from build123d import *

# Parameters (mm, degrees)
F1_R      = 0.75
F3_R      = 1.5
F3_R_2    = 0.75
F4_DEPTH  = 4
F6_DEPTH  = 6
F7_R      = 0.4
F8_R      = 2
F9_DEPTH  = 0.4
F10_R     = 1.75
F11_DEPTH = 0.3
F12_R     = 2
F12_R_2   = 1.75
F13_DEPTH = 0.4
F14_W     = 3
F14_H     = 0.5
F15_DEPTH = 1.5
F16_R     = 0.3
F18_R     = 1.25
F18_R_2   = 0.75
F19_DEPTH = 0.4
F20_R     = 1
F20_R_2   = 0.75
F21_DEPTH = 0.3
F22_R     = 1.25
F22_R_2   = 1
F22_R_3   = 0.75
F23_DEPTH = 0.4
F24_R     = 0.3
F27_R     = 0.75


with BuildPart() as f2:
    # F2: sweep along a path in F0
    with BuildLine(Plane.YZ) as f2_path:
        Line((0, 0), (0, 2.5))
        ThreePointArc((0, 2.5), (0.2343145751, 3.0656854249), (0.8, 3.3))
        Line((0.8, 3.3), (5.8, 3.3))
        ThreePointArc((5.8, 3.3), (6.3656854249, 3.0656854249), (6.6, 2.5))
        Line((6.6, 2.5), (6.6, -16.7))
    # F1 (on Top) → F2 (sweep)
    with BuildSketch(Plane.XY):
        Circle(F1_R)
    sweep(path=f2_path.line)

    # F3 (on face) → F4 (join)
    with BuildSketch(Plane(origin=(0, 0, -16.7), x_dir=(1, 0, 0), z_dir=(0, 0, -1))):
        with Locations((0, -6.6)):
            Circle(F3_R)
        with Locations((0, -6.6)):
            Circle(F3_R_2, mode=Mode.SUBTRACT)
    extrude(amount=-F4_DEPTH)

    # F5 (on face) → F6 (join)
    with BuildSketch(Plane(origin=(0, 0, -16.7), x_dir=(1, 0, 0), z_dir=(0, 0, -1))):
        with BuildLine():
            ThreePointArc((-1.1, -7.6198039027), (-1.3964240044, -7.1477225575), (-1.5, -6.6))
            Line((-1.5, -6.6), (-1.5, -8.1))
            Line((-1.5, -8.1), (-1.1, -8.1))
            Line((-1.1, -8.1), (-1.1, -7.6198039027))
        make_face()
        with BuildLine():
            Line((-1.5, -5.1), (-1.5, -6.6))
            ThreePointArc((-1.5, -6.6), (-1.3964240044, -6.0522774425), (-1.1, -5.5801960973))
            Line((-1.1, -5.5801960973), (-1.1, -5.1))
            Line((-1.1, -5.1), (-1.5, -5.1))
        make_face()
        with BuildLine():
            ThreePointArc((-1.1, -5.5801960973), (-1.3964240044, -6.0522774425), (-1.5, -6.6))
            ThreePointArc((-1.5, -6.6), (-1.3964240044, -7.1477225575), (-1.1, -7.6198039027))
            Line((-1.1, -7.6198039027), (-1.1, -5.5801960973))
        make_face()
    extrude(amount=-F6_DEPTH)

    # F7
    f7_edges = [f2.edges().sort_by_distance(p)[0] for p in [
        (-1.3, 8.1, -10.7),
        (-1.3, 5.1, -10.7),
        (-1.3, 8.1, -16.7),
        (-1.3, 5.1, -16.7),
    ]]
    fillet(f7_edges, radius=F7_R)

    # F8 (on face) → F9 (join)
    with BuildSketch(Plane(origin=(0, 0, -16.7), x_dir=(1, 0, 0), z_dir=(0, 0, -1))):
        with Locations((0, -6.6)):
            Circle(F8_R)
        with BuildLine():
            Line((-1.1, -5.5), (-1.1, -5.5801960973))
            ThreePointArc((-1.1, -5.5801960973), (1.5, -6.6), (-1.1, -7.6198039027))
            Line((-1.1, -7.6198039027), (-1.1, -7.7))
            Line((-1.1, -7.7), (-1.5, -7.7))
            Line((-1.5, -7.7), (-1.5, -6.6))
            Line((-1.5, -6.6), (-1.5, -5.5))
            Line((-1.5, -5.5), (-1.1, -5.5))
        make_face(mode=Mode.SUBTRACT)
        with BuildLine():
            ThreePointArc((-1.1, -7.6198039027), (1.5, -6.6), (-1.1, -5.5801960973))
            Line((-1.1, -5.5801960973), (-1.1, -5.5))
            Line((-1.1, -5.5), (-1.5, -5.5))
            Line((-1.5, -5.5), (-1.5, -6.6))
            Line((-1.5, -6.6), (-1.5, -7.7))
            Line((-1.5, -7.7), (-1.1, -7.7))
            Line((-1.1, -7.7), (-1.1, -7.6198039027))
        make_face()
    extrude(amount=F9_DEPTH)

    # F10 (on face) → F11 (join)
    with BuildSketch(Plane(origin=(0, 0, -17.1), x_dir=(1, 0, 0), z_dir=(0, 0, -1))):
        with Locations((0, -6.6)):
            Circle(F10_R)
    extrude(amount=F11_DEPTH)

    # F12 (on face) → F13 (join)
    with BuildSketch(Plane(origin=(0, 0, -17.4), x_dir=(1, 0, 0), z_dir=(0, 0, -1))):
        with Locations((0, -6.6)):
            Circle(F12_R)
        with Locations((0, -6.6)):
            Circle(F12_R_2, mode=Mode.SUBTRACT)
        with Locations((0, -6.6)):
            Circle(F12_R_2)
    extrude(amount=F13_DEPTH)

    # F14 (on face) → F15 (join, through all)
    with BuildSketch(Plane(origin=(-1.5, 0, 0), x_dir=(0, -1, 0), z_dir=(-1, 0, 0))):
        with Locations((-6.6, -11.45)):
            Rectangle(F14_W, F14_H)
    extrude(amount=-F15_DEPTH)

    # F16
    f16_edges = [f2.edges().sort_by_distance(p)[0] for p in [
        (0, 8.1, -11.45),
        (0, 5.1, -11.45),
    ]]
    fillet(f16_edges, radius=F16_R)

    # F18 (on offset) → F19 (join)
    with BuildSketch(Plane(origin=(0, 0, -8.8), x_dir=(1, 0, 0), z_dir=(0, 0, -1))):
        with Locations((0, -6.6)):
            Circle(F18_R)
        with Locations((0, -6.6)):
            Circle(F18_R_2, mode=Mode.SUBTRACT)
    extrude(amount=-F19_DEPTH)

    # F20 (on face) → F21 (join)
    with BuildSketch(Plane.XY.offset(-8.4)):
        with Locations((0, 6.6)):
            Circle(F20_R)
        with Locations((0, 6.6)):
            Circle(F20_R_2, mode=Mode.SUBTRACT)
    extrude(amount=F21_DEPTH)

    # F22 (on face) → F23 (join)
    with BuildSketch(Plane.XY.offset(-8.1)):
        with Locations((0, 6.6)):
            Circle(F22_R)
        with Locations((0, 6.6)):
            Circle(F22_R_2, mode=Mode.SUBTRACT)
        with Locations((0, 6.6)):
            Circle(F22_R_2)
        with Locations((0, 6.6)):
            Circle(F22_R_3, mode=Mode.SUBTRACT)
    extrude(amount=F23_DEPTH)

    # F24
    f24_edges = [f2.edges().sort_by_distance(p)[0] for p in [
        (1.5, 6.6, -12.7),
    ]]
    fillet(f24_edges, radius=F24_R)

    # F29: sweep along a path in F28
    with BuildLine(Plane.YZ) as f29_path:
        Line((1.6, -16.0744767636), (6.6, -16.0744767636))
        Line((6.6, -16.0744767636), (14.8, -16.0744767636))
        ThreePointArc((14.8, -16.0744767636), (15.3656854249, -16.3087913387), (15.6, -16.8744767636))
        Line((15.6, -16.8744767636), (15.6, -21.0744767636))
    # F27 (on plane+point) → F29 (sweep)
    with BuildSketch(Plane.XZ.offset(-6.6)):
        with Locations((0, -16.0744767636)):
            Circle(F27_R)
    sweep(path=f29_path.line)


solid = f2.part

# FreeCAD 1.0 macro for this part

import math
import FreeCAD as App
import Part
import Sketcher


def edges_at(feature, points):
    """Names of the edges that pass closest to the given points."""
    edges = feature.Shape.Edges
    near = lambda p: min(range(len(edges)), key=lambda i: edges[i].distToShape(Part.Vertex(*p))[0])
    return sorted({f"Edge{near(p) + 1}" for p in points})

doc = App.newDocument("Part")
body = doc.addObject("PartDesign::Body", "Body")

# Sketch on XY plane
sketch1 = doc.addObject("Sketcher::SketchObject", "Sketch")
body.addObject(sketch1)
sketch1.AttachmentSupport = (doc.XY_Plane, [""])
sketch1.MapMode = "FlatFace"
sketch1.addGeometry(Part.Circle(App.Vector(0, 0, 0), App.Vector(0, 0, 1), 0.8), False)
sketch1.addConstraint([
    Sketcher.Constraint("Coincident", 0, 3, -1, 1),
    Sketcher.Constraint("Diameter", 0, 1.5),
])

# Sketch on YZ plane
sketch2 = doc.addObject("Sketcher::SketchObject", "Sketch001")
body.addObject(sketch2)
sketch2.AttachmentSupport = (doc.YZ_Plane, [""])
sketch2.MapMode = "FlatFace"
sketch2.addGeometry([
    Part.LineSegment(App.Vector(0, 0, 0), App.Vector(0, 2.5, 0)),  # 0
    Part.ArcOfCircle(Part.Circle(App.Vector(0.8, 2.5, 0), App.Vector(0, 0, 1), 0.8), math.radians(90), math.radians(180)),  # 1
    Part.LineSegment(App.Vector(0.8, 3.3, 0), App.Vector(5.8, 3.3, 0)),  # 2
    Part.ArcOfCircle(Part.Circle(App.Vector(5.8, 2.5, 0), App.Vector(0, 0, 1), 0.8), math.radians(0), math.radians(90)),  # 3
    Part.LineSegment(App.Vector(6.6, 2.5, 0), App.Vector(6.6, -16.7, 0)),  # 4
], False)
sketch2.addConstraint([
    Sketcher.Constraint("Tangent", 0, 2, 1, 2),
    Sketcher.Constraint("Tangent", 1, 1, 2, 1),
    Sketcher.Constraint("Tangent", 2, 2, 3, 2),
    Sketcher.Constraint("Tangent", 3, 1, 4, 1),
    Sketcher.Constraint("Vertical", 0),
    Sketcher.Constraint("Horizontal", 2),
    Sketcher.Constraint("Vertical", 4),
    Sketcher.Constraint("Coincident", 0, 1, -1, 1),
    Sketcher.Constraint("Equal", 1, 3),
    Sketcher.Constraint("Radius", 1, 0.8),
    Sketcher.Constraint("DistanceX", 2, 1, 2, 2, 5.0),
    Sketcher.Constraint("DistanceY", 0, 1, 0, 2, 2.5),
    Sketcher.Constraint("DistanceY", 4, 2, 4, 1, 19.2),
])
doc.recompute()

additivepipe = doc.addObject("PartDesign::AdditivePipe", "AdditivePipe")
body.addObject(additivepipe)
additivepipe.Profile = sketch1
additivepipe.Spine = (sketch2, ["Edge1", "Edge2", "Edge3", "Edge4", "Edge5"])

# Sketch on XY plane
sketch3 = doc.addObject("Sketcher::SketchObject", "Sketch002")
body.addObject(sketch3)
sketch3.AttachmentSupport = (doc.XY_Plane, [""])
sketch3.MapMode = "FlatFace"
sketch3.AttachmentOffset = App.Placement(App.Vector(0, 0, -16.7), App.Rotation())
sketch3.addGeometry([
    Part.Circle(App.Vector(0, 6.6, 0), App.Vector(0, 0, 1), 1.5),
    Part.Circle(App.Vector(0, 6.6, 0), App.Vector(0, 0, 1), 0.8),
], False)
sketch3.addConstraint([
    Sketcher.Constraint("Coincident", 1, 3, 0, 3),
    Sketcher.Constraint("PointOnObject", 0, 3, -2),
    Sketcher.Constraint("Diameter", 0, 3.0),
    Sketcher.Constraint("Diameter", 1, 1.5),
    Sketcher.Constraint("DistanceY", -1, 1, 0, 3, 6.6),
])
pad1 = doc.addObject("PartDesign::Pad", "Pad")
body.addObject(pad1)
pad1.Profile = sketch3
pad1.Length = 4

# Sketch on XY plane
sketch4 = doc.addObject("Sketcher::SketchObject", "Sketch003")
body.addObject(sketch4)
sketch4.AttachmentSupport = (doc.XY_Plane, [""])
sketch4.MapMode = "FlatFace"
sketch4.AttachmentOffset = App.Placement(App.Vector(0, 0, -16.7), App.Rotation())
sketch4.addGeometry([
    Part.LineSegment(App.Vector(-1.5, 8.1, 0), App.Vector(-1.1, 8.1, 0)),
    Part.LineSegment(App.Vector(-1.1, 8.1, 0), App.Vector(-1.1, 5.1, 0)),
    Part.LineSegment(App.Vector(-1.1, 5.1, 0), App.Vector(-1.5, 5.1, 0)),
    Part.LineSegment(App.Vector(-1.5, 5.1, 0), App.Vector(-1.5, 8.1, 0)),
], False)
sketch4.addConstraint([
    Sketcher.Constraint("Coincident", 0, 2, 1, 1),
    Sketcher.Constraint("Coincident", 1, 2, 2, 1),
    Sketcher.Constraint("Coincident", 2, 2, 3, 1),
    Sketcher.Constraint("Coincident", 3, 2, 0, 1),
    Sketcher.Constraint("Horizontal", 0),
    Sketcher.Constraint("Vertical", 1),
    Sketcher.Constraint("Horizontal", 2),
    Sketcher.Constraint("Vertical", 3),
    Sketcher.Constraint("DistanceY", 1, 2, 1, 1, 3.0),
    Sketcher.Constraint("DistanceX", 0, 1, 0, 2, 0.4),
    Sketcher.Constraint("DistanceX", 0, 2, -1, 1, 1.1),
    Sketcher.Constraint("DistanceY", -1, 1, 0, 2, 8.1),
])
pad2 = doc.addObject("PartDesign::Pad", "Pad001")
body.addObject(pad2)
pad2.Profile = sketch4
pad2.Length = 6
doc.recompute()

fillet = doc.addObject("PartDesign::Fillet", "Fillet")
body.addObject(fillet)
fillet.Base = (pad2, edges_at(pad2, [
    (-1.3, 8.1, -10.7),
    (-1.3, 5.1, -10.7),
    (-1.3, 8.1, -16.7),
    (-1.3, 5.1, -16.7),
]))
fillet.Radius = 0.4

# Sketch on XY plane
sketch5 = doc.addObject("Sketcher::SketchObject", "Sketch004")
body.addObject(sketch5)
sketch5.AttachmentSupport = (doc.XY_Plane, [""])
sketch5.MapMode = "FlatFace"
sketch5.AttachmentOffset = App.Placement(App.Vector(0, 0, -16.7), App.Rotation())
sketch5.addGeometry(Part.Circle(App.Vector(0, 6.6, 0), App.Vector(0, 0, 1), 2), False)
sketch5.addConstraint([
    Sketcher.Constraint("PointOnObject", 0, 3, -2),
    Sketcher.Constraint("Diameter", 0, 4.0),
    Sketcher.Constraint("DistanceY", -1, 1, 0, 3, 6.6),
])
pad3 = doc.addObject("PartDesign::Pad", "Pad002")
body.addObject(pad3)
pad3.Profile = sketch5
pad3.Length = 0.4
pad3.Reversed = True

# Sketch on XY plane
sketch6 = doc.addObject("Sketcher::SketchObject", "Sketch005")
body.addObject(sketch6)
sketch6.AttachmentSupport = (doc.XY_Plane, [""])
sketch6.MapMode = "FlatFace"
sketch6.AttachmentOffset = App.Placement(App.Vector(0, 0, -17.1), App.Rotation())
sketch6.addGeometry(Part.Circle(App.Vector(0, 6.6, 0), App.Vector(0, 0, 1), 1.8), False)
sketch6.addConstraint([
    Sketcher.Constraint("PointOnObject", 0, 3, -2),
    Sketcher.Constraint("Diameter", 0, 3.5),
    Sketcher.Constraint("DistanceY", -1, 1, 0, 3, 6.6),
])
pad4 = doc.addObject("PartDesign::Pad", "Pad003")
body.addObject(pad4)
pad4.Profile = sketch6
pad4.Length = 0.3
pad4.Reversed = True

# Sketch on XY plane
sketch7 = doc.addObject("Sketcher::SketchObject", "Sketch006")
body.addObject(sketch7)
sketch7.AttachmentSupport = (doc.XY_Plane, [""])
sketch7.MapMode = "FlatFace"
sketch7.AttachmentOffset = App.Placement(App.Vector(0, 0, -17.4), App.Rotation())
sketch7.addGeometry(Part.Circle(App.Vector(0, 6.6, 0), App.Vector(0, 0, 1), 2), False)
sketch7.addConstraint([
    Sketcher.Constraint("PointOnObject", 0, 3, -2),
    Sketcher.Constraint("Diameter", 0, 4.0),
    Sketcher.Constraint("DistanceY", -1, 1, 0, 3, 6.6),
])
pad5 = doc.addObject("PartDesign::Pad", "Pad004")
body.addObject(pad5)
pad5.Profile = sketch7
pad5.Length = 0.4
pad5.Reversed = True

# Sketch on YZ plane
sketch8 = doc.addObject("Sketcher::SketchObject", "Sketch007")
body.addObject(sketch8)
sketch8.AttachmentSupport = (doc.YZ_Plane, [""])
sketch8.MapMode = "FlatFace"
sketch8.AttachmentOffset = App.Placement(App.Vector(0, 0, -1.5), App.Rotation())
sketch8.addGeometry([
    Part.LineSegment(App.Vector(8.1, -11.2, 0), App.Vector(8.1, -11.7, 0)),
    Part.LineSegment(App.Vector(8.1, -11.7, 0), App.Vector(5.1, -11.7, 0)),
    Part.LineSegment(App.Vector(5.1, -11.7, 0), App.Vector(5.1, -11.2, 0)),
    Part.LineSegment(App.Vector(5.1, -11.2, 0), App.Vector(8.1, -11.2, 0)),
], False)
sketch8.addConstraint([
    Sketcher.Constraint("Coincident", 0, 2, 1, 1),
    Sketcher.Constraint("Coincident", 1, 2, 2, 1),
    Sketcher.Constraint("Coincident", 2, 2, 3, 1),
    Sketcher.Constraint("Coincident", 3, 2, 0, 1),
    Sketcher.Constraint("Vertical", 0),
    Sketcher.Constraint("Horizontal", 1),
    Sketcher.Constraint("Vertical", 2),
    Sketcher.Constraint("Horizontal", 3),
    Sketcher.Constraint("DistanceX", 1, 2, 1, 1, 3.0),
    Sketcher.Constraint("DistanceY", 0, 2, 0, 1, 0.5),
    Sketcher.Constraint("DistanceX", -1, 1, 0, 2, 8.1),
    Sketcher.Constraint("DistanceY", 0, 2, -1, 1, 11.7),
])
pad6 = doc.addObject("PartDesign::Pad", "Pad005")
body.addObject(pad6)
pad6.Profile = sketch8
pad6.Length = 1.5
doc.recompute()

fillet2 = doc.addObject("PartDesign::Fillet", "Fillet001")
body.addObject(fillet2)
fillet2.Base = (pad6, edges_at(pad6, [(0, 8.1, -11.45), (0, 5.1, -11.45)]))
fillet2.Radius = 0.3

# Sketch on XY plane
sketch9 = doc.addObject("Sketcher::SketchObject", "Sketch008")
body.addObject(sketch9)
sketch9.AttachmentSupport = (doc.XY_Plane, [""])
sketch9.MapMode = "FlatFace"
sketch9.AttachmentOffset = App.Placement(App.Vector(0, 0, -8.8), App.Rotation())
sketch9.addGeometry([
    Part.Circle(App.Vector(0, 6.6, 0), App.Vector(0, 0, 1), 1.2),
    Part.Circle(App.Vector(0, 6.6, 0), App.Vector(0, 0, 1), 0.8),
], False)
sketch9.addConstraint([
    Sketcher.Constraint("Coincident", 1, 3, 0, 3),
    Sketcher.Constraint("PointOnObject", 0, 3, -2),
    Sketcher.Constraint("Diameter", 0, 2.5),
    Sketcher.Constraint("Diameter", 1, 1.5),
    Sketcher.Constraint("DistanceY", -1, 1, 0, 3, 6.6),
])
pad7 = doc.addObject("PartDesign::Pad", "Pad006")
body.addObject(pad7)
pad7.Profile = sketch9
pad7.Length = 0.4

# Sketch on XY plane
sketch10 = doc.addObject("Sketcher::SketchObject", "Sketch009")
body.addObject(sketch10)
sketch10.AttachmentSupport = (doc.XY_Plane, [""])
sketch10.MapMode = "FlatFace"
sketch10.AttachmentOffset = App.Placement(App.Vector(0, 0, -8.4), App.Rotation())
sketch10.addGeometry([
    Part.Circle(App.Vector(0, 6.6, 0), App.Vector(0, 0, 1), 1),
    Part.Circle(App.Vector(0, 6.6, 0), App.Vector(0, 0, 1), 0.8),
], False)
sketch10.addConstraint([
    Sketcher.Constraint("Coincident", 1, 3, 0, 3),
    Sketcher.Constraint("PointOnObject", 0, 3, -2),
    Sketcher.Constraint("Diameter", 0, 2.0),
    Sketcher.Constraint("Diameter", 1, 1.5),
    Sketcher.Constraint("DistanceY", -1, 1, 0, 3, 6.6),
])
pad8 = doc.addObject("PartDesign::Pad", "Pad007")
body.addObject(pad8)
pad8.Profile = sketch10
pad8.Length = 0.3

# Sketch on XY plane
sketch11 = doc.addObject("Sketcher::SketchObject", "Sketch010")
body.addObject(sketch11)
sketch11.AttachmentSupport = (doc.XY_Plane, [""])
sketch11.MapMode = "FlatFace"
sketch11.AttachmentOffset = App.Placement(App.Vector(0, 0, -8.1), App.Rotation())
sketch11.addGeometry([
    Part.Circle(App.Vector(0, 6.6, 0), App.Vector(0, 0, 1), 1.2),
    Part.Circle(App.Vector(0, 6.6, 0), App.Vector(0, 0, 1), 0.8),
], False)
sketch11.addConstraint([
    Sketcher.Constraint("Coincident", 1, 3, 0, 3),
    Sketcher.Constraint("PointOnObject", 0, 3, -2),
    Sketcher.Constraint("Diameter", 0, 2.5),
    Sketcher.Constraint("Diameter", 1, 1.5),
    Sketcher.Constraint("DistanceY", -1, 1, 0, 3, 6.6),
])
pad9 = doc.addObject("PartDesign::Pad", "Pad008")
body.addObject(pad9)
pad9.Profile = sketch11
pad9.Length = 0.4
doc.recompute()

fillet3 = doc.addObject("PartDesign::Fillet", "Fillet002")
body.addObject(fillet3)
fillet3.Base = (pad9, edges_at(pad9, [(1.5, 6.6, -12.7)]))
fillet3.Radius = 0.3

# Sketch on XZ plane
sketch12 = doc.addObject("Sketcher::SketchObject", "Sketch011")
body.addObject(sketch12)
sketch12.AttachmentSupport = (doc.XZ_Plane, [""])
sketch12.MapMode = "FlatFace"
sketch12.AttachmentOffset = App.Placement(App.Vector(0, 0, -6.6), App.Rotation())
sketch12.addGeometry(Part.Circle(App.Vector(0, -16.1, 0), App.Vector(0, 0, 1), 0.8), False)
sketch12.addConstraint([
    Sketcher.Constraint("PointOnObject", 0, 3, -2),
    Sketcher.Constraint("Diameter", 0, 1.5),
    Sketcher.Constraint("DistanceY", 0, 3, -1, 1, 16.074477),
])

# Sketch on YZ plane
sketch13 = doc.addObject("Sketcher::SketchObject", "Sketch012")
body.addObject(sketch13)
sketch13.AttachmentSupport = (doc.YZ_Plane, [""])
sketch13.MapMode = "FlatFace"
sketch13.addGeometry([
    Part.LineSegment(App.Vector(1.6, -16.1, 0), App.Vector(14.8, -16.1, 0)),
    Part.ArcOfCircle(Part.Circle(App.Vector(14.8, -16.9, 0), App.Vector(0, 0, 1), 0.8), math.radians(0), math.radians(90)),
    Part.LineSegment(App.Vector(15.6, -16.9, 0), App.Vector(15.6, -21.1, 0)),
], False)
sketch13.addConstraint([
    Sketcher.Constraint("Tangent", 0, 2, 1, 2),
    Sketcher.Constraint("Tangent", 1, 1, 2, 1),
    Sketcher.Constraint("Horizontal", 0),
    Sketcher.Constraint("Vertical", 2),
    Sketcher.Constraint("Radius", 1, 0.8),
    Sketcher.Constraint("DistanceX", 0, 1, 0, 2, 13.2),
    Sketcher.Constraint("DistanceY", 2, 2, 2, 1, 4.2),
    Sketcher.Constraint("DistanceX", -1, 1, 1, 3, 14.8),
    Sketcher.Constraint("DistanceY", 1, 3, -1, 1, 16.874477),
])
doc.recompute()

additivepipe2 = doc.addObject("PartDesign::AdditivePipe", "AdditivePipe001")
body.addObject(additivepipe2)
additivepipe2.Profile = sketch12
additivepipe2.Spine = (sketch13, ["Edge1", "Edge2", "Edge3"])

doc.recompute()
